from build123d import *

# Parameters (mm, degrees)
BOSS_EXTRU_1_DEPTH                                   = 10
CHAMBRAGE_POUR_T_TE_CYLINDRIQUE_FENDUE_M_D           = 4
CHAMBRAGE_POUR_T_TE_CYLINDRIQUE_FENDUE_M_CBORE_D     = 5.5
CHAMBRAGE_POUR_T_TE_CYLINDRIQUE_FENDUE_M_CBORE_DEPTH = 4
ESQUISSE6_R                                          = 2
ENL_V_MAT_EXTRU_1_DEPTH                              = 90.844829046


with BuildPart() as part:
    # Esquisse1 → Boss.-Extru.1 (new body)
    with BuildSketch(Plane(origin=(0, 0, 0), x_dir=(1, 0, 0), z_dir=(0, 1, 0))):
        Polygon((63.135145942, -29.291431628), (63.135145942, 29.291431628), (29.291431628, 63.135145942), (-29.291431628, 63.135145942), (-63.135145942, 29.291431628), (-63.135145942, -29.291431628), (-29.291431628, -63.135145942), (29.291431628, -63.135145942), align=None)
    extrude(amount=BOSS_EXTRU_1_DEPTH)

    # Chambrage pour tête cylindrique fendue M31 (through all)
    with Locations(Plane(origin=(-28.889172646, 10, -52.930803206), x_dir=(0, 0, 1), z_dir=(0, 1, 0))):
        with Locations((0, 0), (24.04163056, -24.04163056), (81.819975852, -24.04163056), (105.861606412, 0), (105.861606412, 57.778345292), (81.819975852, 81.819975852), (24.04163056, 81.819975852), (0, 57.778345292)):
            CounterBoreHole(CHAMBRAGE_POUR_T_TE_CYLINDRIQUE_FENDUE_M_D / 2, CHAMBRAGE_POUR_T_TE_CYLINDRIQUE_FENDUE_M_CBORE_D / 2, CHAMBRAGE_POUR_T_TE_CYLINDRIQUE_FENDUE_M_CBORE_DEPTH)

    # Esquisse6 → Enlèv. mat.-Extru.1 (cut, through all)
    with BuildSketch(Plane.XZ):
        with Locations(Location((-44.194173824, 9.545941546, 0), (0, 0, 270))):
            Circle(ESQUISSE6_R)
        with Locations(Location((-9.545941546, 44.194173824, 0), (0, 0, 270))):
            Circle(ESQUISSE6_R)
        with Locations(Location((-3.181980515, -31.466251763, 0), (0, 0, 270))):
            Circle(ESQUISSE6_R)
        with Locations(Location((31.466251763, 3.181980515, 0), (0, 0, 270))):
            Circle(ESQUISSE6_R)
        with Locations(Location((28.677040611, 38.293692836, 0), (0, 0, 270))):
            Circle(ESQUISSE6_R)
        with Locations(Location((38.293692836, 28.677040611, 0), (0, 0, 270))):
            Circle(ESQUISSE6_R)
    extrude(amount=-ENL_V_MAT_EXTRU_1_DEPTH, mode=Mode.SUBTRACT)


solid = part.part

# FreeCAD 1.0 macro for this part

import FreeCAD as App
import Part
import Sketcher
from FreeCAD import Vector

doc = App.newDocument("Part")
body = doc.addObject("PartDesign::Body", "Body")

# Sketch on XZ plane
sketch1 = body.newObject("Sketcher::SketchObject", "Sketch")
sketch1.AttachmentSupport = (doc.getObject("XZ_Plane"), [""])
sketch1.MapMode = "FlatFace"
sketch1.addGeometry(Part.LineSegment(Vector(63, 29, 0), Vector(63, -29, 0)), False)
sketch1.addGeometry(Part.LineSegment(Vector(63, -29, 0), Vector(29, -63, 0)), False)
sketch1.addGeometry(Part.LineSegment(Vector(29, -63, 0), Vector(-29, -63, 0)), False)
sketch1.addGeometry(Part.LineSegment(Vector(-29, -63, 0), Vector(-63, -29, 0)), False)
sketch1.addGeometry(Part.LineSegment(Vector(-63, -29, 0), Vector(-63, 29, 0)), False)
sketch1.addGeometry(Part.LineSegment(Vector(-63, 29, 0), Vector(-29, 63, 0)), False)
sketch1.addGeometry(Part.LineSegment(Vector(-29, 63, 0), Vector(29, 63, 0)), False)
sketch1.addGeometry(Part.LineSegment(Vector(29, 63, 0), Vector(63, 29, 0)), False)
sketch1.addConstraint(Sketcher.Constraint("Coincident", 0, 2, 1, 1))
sketch1.addConstraint(Sketcher.Constraint("Coincident", 1, 2, 2, 1))
sketch1.addConstraint(Sketcher.Constraint("Coincident", 2, 2, 3, 1))
sketch1.addConstraint(Sketcher.Constraint("Coincident", 3, 2, 4, 1))
sketch1.addConstraint(Sketcher.Constraint("Coincident", 4, 2, 5, 1))
sketch1.addConstraint(Sketcher.Constraint("Coincident", 5, 2, 6, 1))
sketch1.addConstraint(Sketcher.Constraint("Coincident", 6, 2, 7, 1))
sketch1.addConstraint(Sketcher.Constraint("Coincident", 7, 2, 0, 1))
sketch1.addConstraint(Sketcher.Constraint("Vertical", 0))
sketch1.addConstraint(Sketcher.Constraint("Horizontal", 2))
sketch1.addConstraint(Sketcher.Constraint("Vertical", 4))
sketch1.addConstraint(Sketcher.Constraint("Horizontal", 6))
sketch1.addConstraint(Sketcher.Constraint("Symmetric", 0, 2, 4, 2, -1, 1))
sketch1.addConstraint(Sketcher.Constraint("Symmetric", 1, 2, 5, 2, -1, 1))
sketch1.addConstraint(Sketcher.Constraint("Perpendicular", 1, 3))
sketch1.addConstraint(Sketcher.Constraint("Perpendicular", 5, 7))
sketch1.addConstraint(Sketcher.Constraint("Horizontal", 0, 2, 3, 2))
sketch1.addConstraint(Sketcher.Constraint("Horizontal", 4, 2, 7, 2))
sketch1.addConstraint(Sketcher.Constraint("Vertical", 2, 2, 5, 2))
sketch1.addConstraint(Sketcher.Constraint("Equal", 6, 0))
sketch1.addConstraint(Sketcher.Constraint("Distance", 1, 47.86224))
sketch1.addConstraint(Sketcher.Constraint("DistanceX", 2, 2, 2, 1, 58.582863))
pad1 = body.newObject("PartDesign::Pad", "Pad")
pad1.Profile = sketch1
pad1.Length = 10
pad1.Reversed = True

# Sketch on XZ plane
sketch2 = body.newObject("Sketcher::SketchObject", "Sketch001")
sketch2.AttachmentSupport = (doc.getObject("XZ_Plane"), [""])
sketch2.MapMode = "FlatFace"
sketch2.AttachmentOffset = App.Placement(Vector(0, 0, -10), App.Rotation())
sketch2.addGeometry(Part.Circle(Vector(-28.9, -52.9, 0), Vector(0, 0, 1), 2), False)
sketch2.addGeometry(Part.Circle(Vector(-52.9, -28.9, 0), Vector(0, 0, 1), 2), False)
sketch2.addGeometry(Part.Circle(Vector(-52.9, 28.9, 0), Vector(0, 0, 1), 2), False)
sketch2.addGeometry(Part.Circle(Vector(-28.9, 52.9, 0), Vector(0, 0, 1), 2), False)
sketch2.addGeometry(Part.Circle(Vector(28.9, 52.9, 0), Vector(0, 0, 1), 2), False)
sketch2.addGeometry(Part.Circle(Vector(52.9, 28.9, 0), Vector(0, 0, 1), 2), False)
sketch2.addGeometry(Part.Circle(Vector(52.9, -28.9, 0), Vector(0, 0, 1), 2), False)
sketch2.addGeometry(Part.Circle(Vector(28.9, -52.9, 0), Vector(0, 0, 1), 2), False)
sketch2.addConstraint(Sketcher.Constraint("Equal", 0, 1))
sketch2.addConstraint(Sketcher.Constraint("Equal", 1, 2))
sketch2.addConstraint(Sketcher.Constraint("Equal", 2, 3))
sketch2.addConstraint(Sketcher.Constraint("Equal", 3, 4))
sketch2.addConstraint(Sketcher.Constraint("Equal", 4, 5))
sketch2.addConstraint(Sketcher.Constraint("Equal", 5, 6))
sketch2.addConstraint(Sketcher.Constraint("Equal", 6, 7))
sketch2.addConstraint(Sketcher.Constraint("Symmetric", 0, 3, 4, 3, -1, 1))
sketch2.addConstraint(Sketcher.Constraint("Symmetric", 1, 3, 5, 3, -1, 1))
sketch2.addConstraint(Sketcher.Constraint("Symmetric", 2, 3, 6, 3, -1, 1))
sketch2.addConstraint(Sketcher.Constraint("Symmetric", 3, 3, 7, 3, -1, 1))
sketch2.addConstraint(Sketcher.Constraint("Symmetric", 3, 3, 4, 3, -2))
sketch2.addConstraint(Sketcher.Constraint("Symmetric", 2, 3, 5, 3, -2))
sketch2.addConstraint(Sketcher.Constraint("Diameter", 0, 4.0))
sketch2.addConstraint(Sketcher.Constraint("DistanceX", 1, 3, 0, 3, 24.041631))
sketch2.addConstraint(Sketcher.Constraint("DistanceY", 0, 3, 1, 3, 24.041631))
sketch2.addConstraint(Sketcher.Constraint("DistanceX", 0, 3, -1, 1, 28.889173))
sketch2.addConstraint(Sketcher.Constraint("DistanceY", 0, 3, -1, 1, 52.930803))
doc.recompute()
hole = body.newObject("PartDesign::Hole", "Hole")
hole.Profile = sketch2
hole.ThreadType = "None"
hole.Diameter = 4
hole.DepthType = "ThroughAll"
hole.HoleCutType = "Counterbore"
hole.HoleCutDiameter = 5.5
hole.HoleCutDepth = 4
hole.Reversed = True

# Sketch on XZ plane
sketch3 = body.newObject("Sketcher::SketchObject", "Sketch002")
sketch3.AttachmentSupport = (doc.getObject("XZ_Plane"), [""])
sketch3.MapMode = "FlatFace"
sketch3.addGeometry(Part.Circle(Vector(-44.2, 9.5, 0), Vector(0, 0, 1), 2), False)
sketch3.addGeometry(Part.Circle(Vector(-9.5, 44.2, 0), Vector(0, 0, 1), 2), False)
sketch3.addGeometry(Part.Circle(Vector(-3.2, -31.5, 0), Vector(0, 0, 1), 2), False)
sketch3.addGeometry(Part.Circle(Vector(31.5, 3.2, 0), Vector(0, 0, 1), 2), False)
sketch3.addGeometry(Part.Circle(Vector(28.7, 38.3, 0), Vector(0, 0, 1), 2), False)
sketch3.addGeometry(Part.Circle(Vector(38.3, 28.7, 0), Vector(0, 0, 1), 2), False)
sketch3.addConstraint(Sketcher.Constraint("Equal", 0, 1))
sketch3.addConstraint(Sketcher.Constraint("Equal", 1, 2))
sketch3.addConstraint(Sketcher.Constraint("Equal", 2, 3))
sketch3.addConstraint(Sketcher.Constraint("Equal", 3, 4))
sketch3.addConstraint(Sketcher.Constraint("Equal", 4, 5))
sketch3.addConstraint(Sketcher.Constraint("Diameter", 0, 4.0))
sketch3.addConstraint(Sketcher.Constraint("DistanceY", 0, 3, 5, 3, 19.131099))
sketch3.addConstraint(Sketcher.Constraint("DistanceY", -1, 1, 0, 3, 9.545942))
sketch3.addConstraint(Sketcher.Constraint("DistanceX", 1, 3, -1, 1, 9.545942))
sketch3.addConstraint(Sketcher.Constraint("DistanceX", 2, 3, -1, 1, 3.181981))
sketch3.addConstraint(Sketcher.Constraint("DistanceY", 2, 3, -1, 1, 31.466252))
sketch3.addConstraint(Sketcher.Constraint("DistanceX", -1, 1, 3, 3, 31.466252))
sketch3.addConstraint(Sketcher.Constraint("DistanceY", -1, 1, 3, 3, 3.181981))
sketch3.addConstraint(Sketcher.Constraint("DistanceX", -1, 1, 4, 3, 28.677041))
sketch3.addConstraint(Sketcher.Constraint("DistanceY", 4, 3, 1, 3, 5.900481))
sketch3.addConstraint(Sketcher.Constraint("DistanceY", 0, 3, 4, 3, 28.747751))
sketch3.addConstraint(Sketcher.Constraint("DistanceX", 3, 3, 5, 3, 6.827441))
sketch3.addConstraint(Sketcher.Constraint("DistanceX", 0, 3, -1, 1, 44.194174))
pocket1 = body.newObject("PartDesign::Pocket", "Pocket")
pocket1.Profile = sketch3
pocket1.Type = "ThroughAll"

doc.recompute()
